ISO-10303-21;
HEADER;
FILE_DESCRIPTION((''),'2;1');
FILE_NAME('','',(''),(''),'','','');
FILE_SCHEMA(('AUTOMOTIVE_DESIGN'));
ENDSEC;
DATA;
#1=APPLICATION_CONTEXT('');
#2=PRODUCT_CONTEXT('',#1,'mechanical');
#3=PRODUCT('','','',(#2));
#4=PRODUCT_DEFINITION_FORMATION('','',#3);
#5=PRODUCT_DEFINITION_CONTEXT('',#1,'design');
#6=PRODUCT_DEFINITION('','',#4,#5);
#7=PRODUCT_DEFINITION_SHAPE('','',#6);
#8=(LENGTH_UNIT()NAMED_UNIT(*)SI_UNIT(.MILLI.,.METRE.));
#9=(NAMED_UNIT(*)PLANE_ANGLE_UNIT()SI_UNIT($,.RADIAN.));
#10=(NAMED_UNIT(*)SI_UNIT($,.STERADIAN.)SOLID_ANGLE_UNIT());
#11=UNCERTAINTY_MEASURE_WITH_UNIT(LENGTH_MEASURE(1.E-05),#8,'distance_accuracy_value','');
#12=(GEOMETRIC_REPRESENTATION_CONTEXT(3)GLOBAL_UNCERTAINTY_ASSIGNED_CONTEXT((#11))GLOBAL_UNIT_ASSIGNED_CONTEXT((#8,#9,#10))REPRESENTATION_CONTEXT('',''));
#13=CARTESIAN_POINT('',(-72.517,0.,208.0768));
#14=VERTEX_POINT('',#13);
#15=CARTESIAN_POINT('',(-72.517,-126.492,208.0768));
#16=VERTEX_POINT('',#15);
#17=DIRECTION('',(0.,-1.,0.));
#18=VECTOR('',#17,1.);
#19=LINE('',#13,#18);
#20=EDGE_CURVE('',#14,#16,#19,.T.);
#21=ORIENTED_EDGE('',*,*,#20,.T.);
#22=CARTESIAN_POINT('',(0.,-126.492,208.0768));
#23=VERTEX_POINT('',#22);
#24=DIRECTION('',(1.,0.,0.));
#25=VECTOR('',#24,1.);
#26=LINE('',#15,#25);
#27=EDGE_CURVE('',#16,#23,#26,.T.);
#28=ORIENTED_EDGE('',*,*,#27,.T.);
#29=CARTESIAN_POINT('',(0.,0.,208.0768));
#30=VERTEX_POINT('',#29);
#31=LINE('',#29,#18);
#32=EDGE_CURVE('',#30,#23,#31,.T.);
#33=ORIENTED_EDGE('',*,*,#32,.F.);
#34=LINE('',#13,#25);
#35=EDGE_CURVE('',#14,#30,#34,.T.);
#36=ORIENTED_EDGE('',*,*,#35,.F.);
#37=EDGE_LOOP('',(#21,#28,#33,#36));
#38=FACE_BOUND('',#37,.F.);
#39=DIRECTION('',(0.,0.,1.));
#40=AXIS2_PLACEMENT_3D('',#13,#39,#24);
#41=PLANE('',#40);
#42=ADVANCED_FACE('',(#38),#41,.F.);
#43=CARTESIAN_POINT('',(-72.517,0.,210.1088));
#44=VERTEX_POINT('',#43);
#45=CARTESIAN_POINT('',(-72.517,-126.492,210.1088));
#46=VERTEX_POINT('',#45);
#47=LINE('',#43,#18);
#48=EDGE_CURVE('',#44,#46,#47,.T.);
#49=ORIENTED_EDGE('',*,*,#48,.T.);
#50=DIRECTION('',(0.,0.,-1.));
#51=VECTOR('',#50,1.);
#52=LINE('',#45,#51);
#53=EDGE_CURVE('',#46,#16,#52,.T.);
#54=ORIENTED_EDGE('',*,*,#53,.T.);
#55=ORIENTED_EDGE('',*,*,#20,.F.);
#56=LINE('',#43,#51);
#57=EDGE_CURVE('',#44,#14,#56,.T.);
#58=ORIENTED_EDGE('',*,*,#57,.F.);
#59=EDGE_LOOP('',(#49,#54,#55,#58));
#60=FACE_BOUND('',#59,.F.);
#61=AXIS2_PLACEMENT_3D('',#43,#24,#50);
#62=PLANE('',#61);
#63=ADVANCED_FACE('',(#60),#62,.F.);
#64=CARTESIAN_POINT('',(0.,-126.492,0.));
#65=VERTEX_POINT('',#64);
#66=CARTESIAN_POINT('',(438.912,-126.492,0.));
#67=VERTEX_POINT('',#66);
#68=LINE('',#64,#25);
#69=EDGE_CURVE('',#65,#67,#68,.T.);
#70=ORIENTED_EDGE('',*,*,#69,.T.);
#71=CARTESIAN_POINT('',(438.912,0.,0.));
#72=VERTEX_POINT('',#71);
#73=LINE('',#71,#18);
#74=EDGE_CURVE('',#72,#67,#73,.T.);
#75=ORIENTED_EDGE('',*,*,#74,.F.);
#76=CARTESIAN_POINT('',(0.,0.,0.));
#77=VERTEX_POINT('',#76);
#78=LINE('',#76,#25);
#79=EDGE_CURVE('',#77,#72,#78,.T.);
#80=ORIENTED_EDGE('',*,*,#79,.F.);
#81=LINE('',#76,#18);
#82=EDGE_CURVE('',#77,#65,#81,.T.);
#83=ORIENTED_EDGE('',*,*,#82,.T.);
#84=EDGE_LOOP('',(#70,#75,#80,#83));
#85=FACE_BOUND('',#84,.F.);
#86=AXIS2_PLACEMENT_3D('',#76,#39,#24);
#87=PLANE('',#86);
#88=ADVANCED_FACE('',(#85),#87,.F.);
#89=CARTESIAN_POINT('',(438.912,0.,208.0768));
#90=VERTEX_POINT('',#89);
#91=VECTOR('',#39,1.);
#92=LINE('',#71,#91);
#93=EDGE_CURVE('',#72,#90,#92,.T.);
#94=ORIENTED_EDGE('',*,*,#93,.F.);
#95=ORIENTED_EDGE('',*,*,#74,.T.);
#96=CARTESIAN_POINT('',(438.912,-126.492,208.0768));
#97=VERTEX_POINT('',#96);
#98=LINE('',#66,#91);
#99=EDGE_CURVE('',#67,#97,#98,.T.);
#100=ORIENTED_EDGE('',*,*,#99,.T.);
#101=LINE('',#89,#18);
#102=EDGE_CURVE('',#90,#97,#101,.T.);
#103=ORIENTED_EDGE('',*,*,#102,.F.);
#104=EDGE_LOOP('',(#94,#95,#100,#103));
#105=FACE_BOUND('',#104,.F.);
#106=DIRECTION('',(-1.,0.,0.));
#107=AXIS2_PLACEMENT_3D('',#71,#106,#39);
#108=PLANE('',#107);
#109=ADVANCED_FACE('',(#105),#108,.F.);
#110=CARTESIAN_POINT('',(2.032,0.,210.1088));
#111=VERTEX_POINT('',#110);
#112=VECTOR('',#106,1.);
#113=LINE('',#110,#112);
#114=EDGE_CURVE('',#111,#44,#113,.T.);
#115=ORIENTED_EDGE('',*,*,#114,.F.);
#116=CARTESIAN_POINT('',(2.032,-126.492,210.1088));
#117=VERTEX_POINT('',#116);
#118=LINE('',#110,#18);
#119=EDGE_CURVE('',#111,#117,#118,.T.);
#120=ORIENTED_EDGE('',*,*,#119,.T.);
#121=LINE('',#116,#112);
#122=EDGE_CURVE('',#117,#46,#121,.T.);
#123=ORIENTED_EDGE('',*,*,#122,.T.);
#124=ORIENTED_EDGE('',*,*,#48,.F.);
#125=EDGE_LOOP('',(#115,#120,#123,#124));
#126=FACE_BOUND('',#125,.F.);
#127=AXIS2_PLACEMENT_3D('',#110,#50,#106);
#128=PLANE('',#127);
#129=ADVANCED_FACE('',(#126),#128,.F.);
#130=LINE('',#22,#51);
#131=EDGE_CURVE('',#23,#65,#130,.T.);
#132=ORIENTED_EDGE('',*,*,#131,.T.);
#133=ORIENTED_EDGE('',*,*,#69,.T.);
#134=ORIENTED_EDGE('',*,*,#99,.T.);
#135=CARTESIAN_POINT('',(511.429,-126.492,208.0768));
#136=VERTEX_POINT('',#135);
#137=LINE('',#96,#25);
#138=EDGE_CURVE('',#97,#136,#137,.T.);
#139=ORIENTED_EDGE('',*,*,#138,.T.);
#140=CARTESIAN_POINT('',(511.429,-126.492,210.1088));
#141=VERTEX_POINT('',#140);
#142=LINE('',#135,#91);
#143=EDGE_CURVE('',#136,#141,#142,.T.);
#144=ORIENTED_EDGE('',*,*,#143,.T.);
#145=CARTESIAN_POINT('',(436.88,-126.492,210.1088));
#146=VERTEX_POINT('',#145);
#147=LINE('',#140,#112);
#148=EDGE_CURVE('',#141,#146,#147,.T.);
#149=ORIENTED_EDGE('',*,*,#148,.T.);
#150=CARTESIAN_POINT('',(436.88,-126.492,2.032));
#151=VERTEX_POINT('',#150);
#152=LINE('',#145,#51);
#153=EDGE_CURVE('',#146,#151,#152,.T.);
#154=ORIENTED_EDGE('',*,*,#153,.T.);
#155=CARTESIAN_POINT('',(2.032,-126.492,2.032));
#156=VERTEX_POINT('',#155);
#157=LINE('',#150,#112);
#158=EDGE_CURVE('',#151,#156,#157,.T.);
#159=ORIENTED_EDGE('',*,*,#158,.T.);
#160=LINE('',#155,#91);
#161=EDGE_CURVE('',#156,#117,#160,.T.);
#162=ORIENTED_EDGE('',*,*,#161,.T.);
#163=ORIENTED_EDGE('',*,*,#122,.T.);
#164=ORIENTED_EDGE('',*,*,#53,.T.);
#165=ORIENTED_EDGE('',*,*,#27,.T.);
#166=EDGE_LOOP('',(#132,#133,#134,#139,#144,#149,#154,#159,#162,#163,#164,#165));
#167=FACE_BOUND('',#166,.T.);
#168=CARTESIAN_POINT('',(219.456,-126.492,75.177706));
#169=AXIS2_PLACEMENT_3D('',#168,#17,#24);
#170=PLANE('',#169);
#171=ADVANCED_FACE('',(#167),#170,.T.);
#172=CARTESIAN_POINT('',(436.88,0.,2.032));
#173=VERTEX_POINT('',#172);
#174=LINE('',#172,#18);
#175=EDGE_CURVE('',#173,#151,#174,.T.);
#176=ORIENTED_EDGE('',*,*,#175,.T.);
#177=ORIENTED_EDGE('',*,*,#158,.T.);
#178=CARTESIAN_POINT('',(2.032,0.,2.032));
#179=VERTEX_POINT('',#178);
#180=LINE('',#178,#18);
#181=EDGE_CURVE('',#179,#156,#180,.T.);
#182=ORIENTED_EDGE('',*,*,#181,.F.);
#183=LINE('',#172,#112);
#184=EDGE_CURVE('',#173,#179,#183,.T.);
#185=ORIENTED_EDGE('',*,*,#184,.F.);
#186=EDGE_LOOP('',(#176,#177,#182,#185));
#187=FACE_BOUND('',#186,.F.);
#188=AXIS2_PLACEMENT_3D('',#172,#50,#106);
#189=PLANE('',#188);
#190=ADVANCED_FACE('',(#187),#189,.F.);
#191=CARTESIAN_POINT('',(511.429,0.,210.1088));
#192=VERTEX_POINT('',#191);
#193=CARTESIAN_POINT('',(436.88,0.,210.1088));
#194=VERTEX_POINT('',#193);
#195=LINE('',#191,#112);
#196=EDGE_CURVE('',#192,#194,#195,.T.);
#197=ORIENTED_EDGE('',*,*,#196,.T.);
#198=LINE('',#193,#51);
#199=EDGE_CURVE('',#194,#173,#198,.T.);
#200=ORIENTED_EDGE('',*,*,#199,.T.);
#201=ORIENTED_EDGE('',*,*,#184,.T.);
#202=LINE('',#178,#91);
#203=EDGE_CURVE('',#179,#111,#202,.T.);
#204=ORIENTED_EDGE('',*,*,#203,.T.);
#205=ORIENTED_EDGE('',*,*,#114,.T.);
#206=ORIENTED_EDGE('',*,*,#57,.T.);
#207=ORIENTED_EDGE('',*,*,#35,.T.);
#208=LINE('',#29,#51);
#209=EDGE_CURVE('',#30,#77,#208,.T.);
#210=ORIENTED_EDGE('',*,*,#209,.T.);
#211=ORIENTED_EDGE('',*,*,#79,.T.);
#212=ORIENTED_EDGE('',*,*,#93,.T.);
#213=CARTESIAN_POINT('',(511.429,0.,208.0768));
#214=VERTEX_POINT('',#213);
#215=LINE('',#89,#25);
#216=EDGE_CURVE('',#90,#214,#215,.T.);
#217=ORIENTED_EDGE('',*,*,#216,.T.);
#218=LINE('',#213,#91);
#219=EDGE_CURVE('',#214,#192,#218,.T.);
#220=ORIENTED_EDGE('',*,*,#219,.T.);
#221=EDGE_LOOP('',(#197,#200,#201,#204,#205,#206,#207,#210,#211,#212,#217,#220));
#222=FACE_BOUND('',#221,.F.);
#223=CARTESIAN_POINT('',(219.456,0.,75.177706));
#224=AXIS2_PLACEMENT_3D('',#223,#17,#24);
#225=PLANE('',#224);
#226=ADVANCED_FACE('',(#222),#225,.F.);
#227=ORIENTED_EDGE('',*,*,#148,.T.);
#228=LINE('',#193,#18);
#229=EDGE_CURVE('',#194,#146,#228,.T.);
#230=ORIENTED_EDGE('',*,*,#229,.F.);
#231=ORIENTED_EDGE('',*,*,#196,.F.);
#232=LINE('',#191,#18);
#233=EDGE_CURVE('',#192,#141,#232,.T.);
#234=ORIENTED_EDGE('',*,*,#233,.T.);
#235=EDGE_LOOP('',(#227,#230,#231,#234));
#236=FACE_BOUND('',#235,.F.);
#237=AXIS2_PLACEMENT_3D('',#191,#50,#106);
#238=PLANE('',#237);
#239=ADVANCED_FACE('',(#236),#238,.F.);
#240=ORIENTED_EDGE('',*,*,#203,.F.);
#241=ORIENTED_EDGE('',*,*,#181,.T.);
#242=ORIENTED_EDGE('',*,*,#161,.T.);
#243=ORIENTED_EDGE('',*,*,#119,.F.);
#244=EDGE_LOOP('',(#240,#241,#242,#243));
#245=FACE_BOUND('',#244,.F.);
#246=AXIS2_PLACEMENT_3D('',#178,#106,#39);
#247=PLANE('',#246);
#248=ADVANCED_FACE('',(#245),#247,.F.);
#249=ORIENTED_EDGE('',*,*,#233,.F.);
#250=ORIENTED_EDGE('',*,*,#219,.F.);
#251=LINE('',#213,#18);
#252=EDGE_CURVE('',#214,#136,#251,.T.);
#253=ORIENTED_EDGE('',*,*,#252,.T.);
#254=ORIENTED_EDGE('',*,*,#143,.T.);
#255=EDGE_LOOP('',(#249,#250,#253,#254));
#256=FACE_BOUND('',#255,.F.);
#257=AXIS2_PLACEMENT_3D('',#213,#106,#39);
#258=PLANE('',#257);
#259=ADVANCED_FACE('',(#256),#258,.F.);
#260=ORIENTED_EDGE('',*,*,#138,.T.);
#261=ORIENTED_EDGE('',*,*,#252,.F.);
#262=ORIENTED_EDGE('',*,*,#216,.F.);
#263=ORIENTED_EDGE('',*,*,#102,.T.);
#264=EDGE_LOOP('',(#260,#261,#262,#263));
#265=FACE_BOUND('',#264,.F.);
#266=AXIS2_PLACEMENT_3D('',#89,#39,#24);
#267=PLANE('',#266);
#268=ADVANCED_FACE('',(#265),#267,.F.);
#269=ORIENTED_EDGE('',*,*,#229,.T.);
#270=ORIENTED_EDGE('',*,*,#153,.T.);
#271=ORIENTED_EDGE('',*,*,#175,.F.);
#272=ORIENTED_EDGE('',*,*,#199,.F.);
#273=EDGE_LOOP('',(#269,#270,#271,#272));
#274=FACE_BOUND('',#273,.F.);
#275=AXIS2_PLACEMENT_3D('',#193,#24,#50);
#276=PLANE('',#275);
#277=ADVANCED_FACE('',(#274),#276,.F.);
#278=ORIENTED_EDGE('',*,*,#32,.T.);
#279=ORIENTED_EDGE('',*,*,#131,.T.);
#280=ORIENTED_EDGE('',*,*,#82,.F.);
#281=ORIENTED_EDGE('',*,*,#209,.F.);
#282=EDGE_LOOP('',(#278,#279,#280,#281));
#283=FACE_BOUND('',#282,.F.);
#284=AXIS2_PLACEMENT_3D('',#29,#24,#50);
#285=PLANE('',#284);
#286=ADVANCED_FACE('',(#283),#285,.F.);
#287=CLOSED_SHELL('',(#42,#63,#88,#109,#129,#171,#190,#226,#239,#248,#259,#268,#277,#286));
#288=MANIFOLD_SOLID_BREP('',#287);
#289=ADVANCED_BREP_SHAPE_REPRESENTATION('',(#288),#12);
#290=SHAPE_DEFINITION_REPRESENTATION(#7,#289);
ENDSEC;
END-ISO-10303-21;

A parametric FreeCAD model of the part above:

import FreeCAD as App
import Part
import Sketcher
Q = App.Units.Quantity


def add_polygon(sketch, points):
    """Adds a closed chain of lines whose ends are joined by coincident constraints."""
    first, n = sketch.GeometryCount, len(points)
    for a, b in zip(points, points[1:] + points[:1]):
        sketch.addGeometry(Part.LineSegment(App.Vector(*a, 0), App.Vector(*b, 0)), False)
    for i in range(n):
        sketch.addConstraint(Sketcher.Constraint("Coincident", first + i, 2, first + (i + 1) % n, 1))

doc = App.newDocument("Part")
body = doc.addObject("PartDesign::Body", "Body")

# Sketch on XZ plane
sketch1 = doc.addObject("Sketcher::SketchObject", "Sketch")
body.addObject(sketch1)
sketch1.AttachmentSupport = (doc.XZ_Plane, [""])
sketch1.MapMode = "FlatFace"
add_polygon(sketch1, [(0, 0), (438.9, 0), (438.9, 208.1), (511.4, 208.1), (511.4, 210.1), (436.9, 210.1), (436.9, 2), (2, 2), (2, 210.1), (-72.5, 210.1), (-72.5, 208.1), (0, 208.1)])  # lines 0-11
sketch1.addConstraint(Sketcher.Constraint("Horizontal", 0))
sketch1.addConstraint(Sketcher.Constraint("Vertical", 1))
sketch1.addConstraint(Sketcher.Constraint("Horizontal", 2))
sketch1.addConstraint(Sketcher.Constraint("Vertical", 3))
sketch1.addConstraint(Sketcher.Constraint("Horizontal", 4))
sketch1.addConstraint(Sketcher.Constraint("Vertical", 5))
sketch1.addConstraint(Sketcher.Constraint("Horizontal", 6))
sketch1.addConstraint(Sketcher.Constraint("Vertical", 7))
sketch1.addConstraint(Sketcher.Constraint("Horizontal", 8))
sketch1.addConstraint(Sketcher.Constraint("Vertical", 9))
sketch1.addConstraint(Sketcher.Constraint("Horizontal", 10))
sketch1.addConstraint(Sketcher.Constraint("Vertical", 11))
sketch1.addConstraint(Sketcher.Constraint("Coincident", 11, 2, -1, 1))
sketch1.addConstraint(Sketcher.Constraint("Horizontal", 4, 2, 7, 2))
sketch1.addConstraint(Sketcher.Constraint("Horizontal", 2, 2, 9, 2))
sketch1.addConstraint(Sketcher.Constraint("Equal", 4, 8))
sketch1.addConstraint(Sketcher.Constraint("Equal", 2, 10))
sketch1.addConstraint(Sketcher.Constraint("Equal", 1, 5))
sketch1.addConstraint(Sketcher.Constraint("DistanceX", 0, 1, 0, 2, Q("17.28 in")))
sketch1.addConstraint(Sketcher.Constraint("DistanceX", 6, 2, 6, 1, Q("17.12 in")))
sketch1.addConstraint(Sketcher.Constraint("DistanceY", 3, 1, 3, 2, Q("0.08 in")))
sketch1.addConstraint(Sketcher.Constraint("DistanceX", 2, 1, 2, 2, Q("2.855 in")))
sketch1.addConstraint(Sketcher.Constraint("DistanceY", 1, 1, 1, 2, Q("8.192 in")))
pad1 = doc.addObject("PartDesign::Pad", "Pad")
body.addObject(pad1)
pad1.Profile = sketch1
pad1.Length = Q("4.98 in")

doc.recompute()
